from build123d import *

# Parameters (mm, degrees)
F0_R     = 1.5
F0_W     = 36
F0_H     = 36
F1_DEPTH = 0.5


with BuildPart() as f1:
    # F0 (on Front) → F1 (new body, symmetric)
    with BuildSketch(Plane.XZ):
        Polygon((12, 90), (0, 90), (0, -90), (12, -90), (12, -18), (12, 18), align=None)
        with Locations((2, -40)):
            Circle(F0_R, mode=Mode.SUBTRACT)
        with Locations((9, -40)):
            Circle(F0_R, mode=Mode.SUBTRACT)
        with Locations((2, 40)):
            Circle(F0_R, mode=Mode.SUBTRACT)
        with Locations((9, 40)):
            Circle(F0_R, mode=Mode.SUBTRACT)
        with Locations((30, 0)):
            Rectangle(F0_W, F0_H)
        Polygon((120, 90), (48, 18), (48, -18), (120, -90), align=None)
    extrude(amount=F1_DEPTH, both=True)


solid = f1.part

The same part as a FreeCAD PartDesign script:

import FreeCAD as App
import Part
import Sketcher
from FreeCAD import Vector

doc = App.newDocument("Part")
body = doc.addObject("PartDesign::Body", "Body")

# Sketch on XZ plane
sketch1 = doc.addObject("Sketcher::SketchObject", "Sketch")
body.addObject(sketch1)
sketch1.AttachmentSupport = (doc.XZ_Plane, [""])
sketch1.MapMode = "FlatFace"
sketch1.addGeometry(Part.LineSegment(Vector(12, 90, 0), Vector(0, 90, 0)), False)
sketch1.addGeometry(Part.LineSegment(Vector(0, 90, 0), Vector(0, -90, 0)), False)
sketch1.addGeometry(Part.LineSegment(Vector(0, -90, 0), Vector(12, -90, 0)), False)
sketch1.addGeometry(Part.LineSegment(Vector(12, -90, 0), Vector(12, -18, 0)), False)
sketch1.addGeometry(Part.LineSegment(Vector(12, -18, 0), Vector(48, -18, 0)), False)
sketch1.addGeometry(Part.LineSegment(Vector(48, -18, 0), Vector(120, -90, 0)), False)
sketch1.addGeometry(Part.LineSegment(Vector(120, -90, 0), Vector(120, 90, 0)), False)
sketch1.addGeometry(Part.LineSegment(Vector(120, 90, 0), Vector(48, 18, 0)), False)
sketch1.addGeometry(Part.LineSegment(Vector(48, 18, 0), Vector(12, 18, 0)), False)
sketch1.addGeometry(Part.LineSegment(Vector(12, 18, 0), Vector(12, 90, 0)), False)
sketch1.addGeometry(Part.Circle(Vector(2, -40, 0), Vector(0, 0, 1), 1.5), False)
sketch1.addGeometry(Part.Circle(Vector(9, -40, 0), Vector(0, 0, 1), 1.5), False)
sketch1.addGeometry(Part.Circle(Vector(2, 40, 0), Vector(0, 0, 1), 1.5), False)
sketch1.addGeometry(Part.Circle(Vector(9, 40, 0), Vector(0, 0, 1), 1.5), False)
sketch1.addConstraint(Sketcher.Constraint("Coincident", 0, 2, 1, 1))
sketch1.addConstraint(Sketcher.Constraint("Coincident", 1, 2, 2, 1))
sketch1.addConstraint(Sketcher.Constraint("Coincident", 2, 2, 3, 1))
sketch1.addConstraint(Sketcher.Constraint("Coincident", 3, 2, 4, 1))
sketch1.addConstraint(Sketcher.Constraint("Coincident", 4, 2, 5, 1))
sketch1.addConstraint(Sketcher.Constraint("Coincident", 5, 2, 6, 1))
sketch1.addConstraint(Sketcher.Constraint("Coincident", 6, 2, 7, 1))
sketch1.addConstraint(Sketcher.Constraint("Coincident", 7, 2, 8, 1))
sketch1.addConstraint(Sketcher.Constraint("Coincident", 8, 2, 9, 1))
sketch1.addConstraint(Sketcher.Constraint("Coincident", 9, 2, 0, 1))
sketch1.addConstraint(Sketcher.Constraint("Horizontal", 0))
sketch1.addConstraint(Sketcher.Constraint("Vertical", 1))
sketch1.addConstraint(Sketcher.Constraint("Horizontal", 2))
sketch1.addConstraint(Sketcher.Constraint("Vertical", 3))
sketch1.addConstraint(Sketcher.Constraint("Horizontal", 4))
sketch1.addConstraint(Sketcher.Constraint("Vertical", 6))
sketch1.addConstraint(Sketcher.Constraint("Horizontal", 8))
sketch1.addConstraint(Sketcher.Constraint("Vertical", 9))
sketch1.addConstraint(Sketcher.Constraint("Equal", 10, 11))
sketch1.addConstraint(Sketcher.Constraint("Equal", 11, 12))
sketch1.addConstraint(Sketcher.Constraint("Equal", 12, 13))
sketch1.addConstraint(Sketcher.Constraint("Symmetric", 0, 2, 1, 2, -1, 1))
sketch1.addConstraint(Sketcher.Constraint("Symmetric", 10, 3, 12, 3, -1))
sketch1.addConstraint(Sketcher.Constraint("Symmetric", 11, 3, 13, 3, -1))
sketch1.addConstraint(Sketcher.Constraint("Symmetric", 4, 2, 7, 2, -1))
sketch1.addConstraint(Sketcher.Constraint("Perpendicular", 5, 7))
sketch1.addConstraint(Sketcher.Constraint("Horizontal", 10, 3, 11, 3))
sketch1.addConstraint(Sketcher.Constraint("Horizontal", 2, 2, 5, 2))
sketch1.addConstraint(Sketcher.Constraint("Horizontal", 0, 2, 6, 2))
sketch1.addConstraint(Sketcher.Constraint("Vertical", 3, 2, 8, 2))
sketch1.addConstraint(Sketcher.Constraint("Diameter", 10, 3.0))
sketch1.addConstraint(Sketcher.Constraint("DistanceX", 0, 2, 0, 1, 12.0))
sketch1.addConstraint(Sketcher.Constraint("DistanceX", 4, 1, 4, 2, 36.0))
sketch1.addConstraint(Sketcher.Constraint("DistanceY", 1, 2, 1, 1, 180.0))
sketch1.addConstraint(Sketcher.Constraint("DistanceY", 3, 1, 3, 2, 72.0))
sketch1.addConstraint(Sketcher.Constraint("DistanceX", -1, 1, 10, 3, 2.0))
sketch1.addConstraint(Sketcher.Constraint("DistanceY", 10, 3, -1, 1, 40.0))
sketch1.addConstraint(Sketcher.Constraint("DistanceX", -1, 1, 11, 3, 9.0))
pad1 = doc.addObject("PartDesign::Pad", "Pad")
body.addObject(pad1)
pad1.Profile = sketch1
pad1.Length = 1
pad1.Midplane = True

doc.recompute()
